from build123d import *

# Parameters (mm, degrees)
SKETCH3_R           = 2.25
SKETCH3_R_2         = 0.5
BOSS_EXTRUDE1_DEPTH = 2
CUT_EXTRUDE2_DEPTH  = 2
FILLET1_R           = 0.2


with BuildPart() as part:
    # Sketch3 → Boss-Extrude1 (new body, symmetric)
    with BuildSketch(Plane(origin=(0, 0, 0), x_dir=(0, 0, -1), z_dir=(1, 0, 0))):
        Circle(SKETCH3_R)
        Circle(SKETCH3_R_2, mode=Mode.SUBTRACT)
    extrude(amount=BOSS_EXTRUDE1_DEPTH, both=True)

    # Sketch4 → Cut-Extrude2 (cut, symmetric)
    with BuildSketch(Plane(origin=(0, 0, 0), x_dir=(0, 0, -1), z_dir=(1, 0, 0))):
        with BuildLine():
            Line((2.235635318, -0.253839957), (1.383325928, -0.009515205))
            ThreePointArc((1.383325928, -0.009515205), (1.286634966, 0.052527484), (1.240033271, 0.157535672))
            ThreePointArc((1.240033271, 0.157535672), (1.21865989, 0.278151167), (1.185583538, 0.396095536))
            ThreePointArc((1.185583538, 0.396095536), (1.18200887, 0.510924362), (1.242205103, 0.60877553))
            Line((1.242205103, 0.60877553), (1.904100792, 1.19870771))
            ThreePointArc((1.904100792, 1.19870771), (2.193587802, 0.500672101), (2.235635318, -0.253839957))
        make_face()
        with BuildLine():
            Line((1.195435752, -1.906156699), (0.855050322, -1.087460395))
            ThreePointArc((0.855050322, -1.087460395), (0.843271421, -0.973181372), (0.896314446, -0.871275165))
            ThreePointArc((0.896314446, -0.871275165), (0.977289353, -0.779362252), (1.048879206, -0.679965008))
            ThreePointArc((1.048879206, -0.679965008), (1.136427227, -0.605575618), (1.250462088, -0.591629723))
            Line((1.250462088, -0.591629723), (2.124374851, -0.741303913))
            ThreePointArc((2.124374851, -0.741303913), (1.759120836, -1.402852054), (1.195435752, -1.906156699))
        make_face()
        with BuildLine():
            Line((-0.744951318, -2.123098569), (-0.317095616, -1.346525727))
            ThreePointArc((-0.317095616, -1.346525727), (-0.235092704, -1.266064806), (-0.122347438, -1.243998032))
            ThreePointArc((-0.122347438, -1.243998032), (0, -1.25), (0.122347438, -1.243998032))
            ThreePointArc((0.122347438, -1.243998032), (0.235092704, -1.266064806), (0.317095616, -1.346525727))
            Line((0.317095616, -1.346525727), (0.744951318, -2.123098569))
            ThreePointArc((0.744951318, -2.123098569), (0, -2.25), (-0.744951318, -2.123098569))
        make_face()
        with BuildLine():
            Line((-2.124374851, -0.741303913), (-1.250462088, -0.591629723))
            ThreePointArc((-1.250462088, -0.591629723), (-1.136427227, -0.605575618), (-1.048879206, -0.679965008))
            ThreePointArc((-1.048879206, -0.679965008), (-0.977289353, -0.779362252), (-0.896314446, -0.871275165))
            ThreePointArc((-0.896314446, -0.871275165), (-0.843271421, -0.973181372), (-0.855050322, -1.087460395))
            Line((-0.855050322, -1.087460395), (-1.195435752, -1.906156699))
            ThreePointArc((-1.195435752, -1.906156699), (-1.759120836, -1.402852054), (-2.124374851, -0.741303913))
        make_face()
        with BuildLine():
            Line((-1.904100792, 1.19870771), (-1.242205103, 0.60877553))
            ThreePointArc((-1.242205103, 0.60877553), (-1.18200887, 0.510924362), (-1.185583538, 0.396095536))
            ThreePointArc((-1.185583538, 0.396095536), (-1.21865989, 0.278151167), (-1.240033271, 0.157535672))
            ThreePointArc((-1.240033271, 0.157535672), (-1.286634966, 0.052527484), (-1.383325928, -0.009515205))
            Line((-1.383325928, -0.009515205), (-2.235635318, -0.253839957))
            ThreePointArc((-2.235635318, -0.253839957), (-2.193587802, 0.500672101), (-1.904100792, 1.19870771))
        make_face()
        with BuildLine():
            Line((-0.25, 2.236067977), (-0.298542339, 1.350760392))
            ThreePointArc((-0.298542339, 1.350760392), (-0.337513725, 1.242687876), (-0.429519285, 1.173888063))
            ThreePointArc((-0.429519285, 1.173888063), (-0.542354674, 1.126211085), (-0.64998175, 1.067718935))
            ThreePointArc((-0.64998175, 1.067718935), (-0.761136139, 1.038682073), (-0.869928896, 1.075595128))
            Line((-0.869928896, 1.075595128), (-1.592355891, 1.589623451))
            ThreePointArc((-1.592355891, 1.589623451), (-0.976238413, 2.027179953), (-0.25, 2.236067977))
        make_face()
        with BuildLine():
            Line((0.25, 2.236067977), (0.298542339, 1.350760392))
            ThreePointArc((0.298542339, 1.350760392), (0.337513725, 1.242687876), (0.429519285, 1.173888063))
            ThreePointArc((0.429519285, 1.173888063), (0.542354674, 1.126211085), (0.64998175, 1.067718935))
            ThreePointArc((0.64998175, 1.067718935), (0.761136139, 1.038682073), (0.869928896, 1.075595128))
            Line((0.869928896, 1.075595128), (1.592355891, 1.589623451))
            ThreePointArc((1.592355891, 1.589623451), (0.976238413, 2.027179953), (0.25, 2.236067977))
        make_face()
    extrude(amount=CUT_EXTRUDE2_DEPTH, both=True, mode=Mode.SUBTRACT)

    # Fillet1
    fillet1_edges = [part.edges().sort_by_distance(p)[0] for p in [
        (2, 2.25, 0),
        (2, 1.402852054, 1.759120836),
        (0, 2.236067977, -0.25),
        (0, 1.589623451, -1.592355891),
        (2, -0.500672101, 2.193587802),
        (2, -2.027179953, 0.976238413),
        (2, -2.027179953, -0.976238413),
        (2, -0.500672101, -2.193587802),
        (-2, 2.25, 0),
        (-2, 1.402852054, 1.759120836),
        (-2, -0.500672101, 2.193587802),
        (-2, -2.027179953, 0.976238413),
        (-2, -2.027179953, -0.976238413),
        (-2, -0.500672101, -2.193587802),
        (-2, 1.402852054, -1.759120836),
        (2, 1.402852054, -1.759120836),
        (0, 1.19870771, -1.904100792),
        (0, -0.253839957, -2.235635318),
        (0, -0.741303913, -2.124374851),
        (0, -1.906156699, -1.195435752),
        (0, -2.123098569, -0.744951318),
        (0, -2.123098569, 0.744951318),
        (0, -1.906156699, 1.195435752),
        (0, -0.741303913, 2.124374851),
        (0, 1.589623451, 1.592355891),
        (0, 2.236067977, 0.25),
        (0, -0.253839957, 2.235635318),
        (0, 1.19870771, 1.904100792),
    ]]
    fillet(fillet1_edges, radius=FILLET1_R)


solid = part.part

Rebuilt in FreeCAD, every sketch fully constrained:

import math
import FreeCAD as App
import Part
import Sketcher

V = App.Vector
Q = App.Units.Quantity


def edges_at(feature, points):
    """Names of the edges that pass closest to the given points."""
    edges = feature.Shape.Edges
    near = lambda p: min(range(len(edges)), key=lambda i: edges[i].distToShape(Part.Vertex(*p))[0])
    return sorted({f"Edge{near(p) + 1}" for p in points})

doc = App.newDocument("Part")
body = doc.addObject("PartDesign::Body", "Body")

# Sketch on YZ plane
sketch1 = doc.addObject("Sketcher::SketchObject", "Sketch")
body.addObject(sketch1)
sketch1.AttachmentSupport = (doc.YZ_Plane, [""])
sketch1.MapMode = "FlatFace"
sketch1.addGeometry([
    Part.Circle(V(0, 0, 0), V(0, 0, 1), 2.2),
    Part.Circle(V(0, 0, 0), V(0, 0, 1), 0.5),
], False)
sketch1.addConstraint([
    Sketcher.Constraint("Coincident", 0, 3, -1, 1),
    Sketcher.Constraint("Coincident", 1, 3, -1, 1),
    Sketcher.Constraint("Diameter", 1, Q("1 mm")),
    Sketcher.Constraint("Diameter", 0, Q("4.5 mm")),
])
pad1 = doc.addObject("PartDesign::Pad", "Pad")
body.addObject(pad1)
pad1.Profile = sketch1
pad1.Length = 4
pad1.Midplane = True

# Sketch on YZ plane
sketch2 = doc.addObject("Sketcher::SketchObject", "Sketch001")
body.addObject(sketch2)
sketch2.AttachmentSupport = (doc.YZ_Plane, [""])
sketch2.MapMode = "FlatFace"
sketch2.addGeometry([
    Part.LineSegment(V(-0.01, -1.38, 0), V(-0.25, -2.24, 0)),  # 0
    Part.ArcOfCircle(Part.Circle(V(0, 0, 0), V(0, 0, 1), 2.25), math.radians(-96), math.radians(-58)),  # 1
    Part.LineSegment(V(1.2, -1.9, 0), V(0.61, -1.24, 0)),  # 2
    Part.ArcOfCircle(Part.Circle(V(0.46, -1.38, 0), V(0, 0, 1), 0.2), math.radians(42), math.radians(108)),  # 3
    Part.ArcOfCircle(Part.Circle(V(0, 0, 0), V(0, 0, 1), 1.25), math.radians(-82.76), math.radians(-71.53)),  # 4
    Part.ArcOfCircle(Part.Circle(V(0.18, -1.44, 0), V(0, 0, 1), 0.2), math.radians(97), math.radians(164)),  # 5
    Part.LineSegment(V(-1.09, -0.86, 0), V(-1.91, -1.2, 0)),  # 6
    Part.ArcOfCircle(Part.Circle(V(0, 0, 0), V(0, 0, 1), 2.25), math.radians(-148), math.radians(-109)),  # 7
    Part.LineSegment(V(-0.74, -2.12, 0), V(-0.59, -1.25, 0)),  # 8
    Part.ArcOfCircle(Part.Circle(V(-0.79, -1.22, 0), V(0, 0, 1), 0.2), math.radians(-10), math.radians(57)),  # 9
    Part.ArcOfCircle(Part.Circle(V(0, 0, 0), V(0, 0, 1), 1.25), math.radians(-134.19), math.radians(-122.95)),  # 10
    Part.ArcOfCircle(Part.Circle(V(-1.01, -1.04, 0), V(0, 0, 1), 0.2), math.radians(46), math.radians(113)),  # 11
    Part.LineSegment(V(-1.35, 0.32, 0), V(-2.12, 0.74, 0)),  # 12
    Part.ArcOfCircle(Part.Circle(V(0, 0, 0), V(0, 0, 1), 2.25), math.radians(161), math.radians(199)),  # 13
    Part.LineSegment(V(-2.12, -0.74, 0), V(-1.35, -0.32, 0)),  # 14
    Part.ArcOfCircle(Part.Circle(V(-1.44, -0.14, 0), V(0, 0, 1), 0.2), math.radians(-61), math.radians(6)),  # 15
    Part.ArcOfCircle(Part.Circle(V(0, 0, 0), V(0, 0, 1), 1.25), math.radians(174.38), math.radians(185.62)),  # 16
    Part.ArcOfCircle(Part.Circle(V(-1.44, 0.14, 0), V(0, 0, 1), 0.2), math.radians(-6), math.radians(61)),  # 17
    Part.LineSegment(V(-0.59, 1.25, 0), V(-0.74, 2.12, 0)),  # 18
    Part.ArcOfCircle(Part.Circle(V(0, 0, 0), V(0, 0, 1), 2.25), math.radians(109), math.radians(148)),  # 19
    Part.LineSegment(V(-1.91, 1.2, 0), V(-1.09, 0.86, 0)),  # 20
    Part.ArcOfCircle(Part.Circle(V(-1.01, 1.04, 0), V(0, 0, 1), 0.2), math.radians(-113), math.radians(-46)),  # 21
    Part.ArcOfCircle(Part.Circle(V(0, 0, 0), V(0, 0, 1), 1.25), math.radians(122.95), math.radians(134.19)),  # 22
    Part.ArcOfCircle(Part.Circle(V(-0.79, 1.22, 0), V(0, 0, 1), 0.2), math.radians(-57), math.radians(10)),  # 23
    Part.LineSegment(V(0.61, 1.24, 0), V(1.2, 1.9, 0)),  # 24
    Part.ArcOfCircle(Part.Circle(V(0, 0, 0), V(0, 0, 1), 2.25), math.radians(58), math.radians(96)),  # 25
    Part.LineSegment(V(-0.25, 2.24, 0), V(-0.01, 1.38, 0)),  # 26
    Part.ArcOfCircle(Part.Circle(V(0.18, 1.44, 0), V(0, 0, 1), 0.2), math.radians(-164), math.radians(-97)),  # 27
    Part.ArcOfCircle(Part.Circle(V(0, 0, 0), V(0, 0, 1), 1.25), math.radians(71.53), math.radians(82.76)),  # 28
    Part.ArcOfCircle(Part.Circle(V(0.46, 1.38, 0), V(0, 0, 1), 0.2), math.radians(-108), math.radians(-42)),  # 29
    Part.LineSegment(V(1.35, 0.3, 0), V(2.24, 0.25, 0)),  # 30
    Part.ArcOfCircle(Part.Circle(V(0, 0, 0), V(0, 0, 1), 2.25), math.radians(6), math.radians(45)),  # 31
    Part.LineSegment(V(1.59, 1.59, 0), V(1.08, 0.87, 0)),  # 32
    Part.ArcOfCircle(Part.Circle(V(1.24, 0.75, 0), V(0, 0, 1), 0.2), math.radians(145), math.radians(211)),  # 33
    Part.ArcOfCircle(Part.Circle(V(0, 0, 0), V(0, 0, 1), 1.25), math.radians(20.1), math.radians(31.33)),  # 34
    Part.ArcOfCircle(Part.Circle(V(1.36, 0.5, 0), V(0, 0, 1), 0.2), math.radians(-160), math.radians(-93)),  # 35
    Part.LineSegment(V(2.24, -0.25, 0), V(1.35, -0.3, 0)),  # 36
    Part.ArcOfCircle(Part.Circle(V(1.36, -0.5, 0), V(0, 0, 1), 0.2), math.radians(93), math.radians(160)),  # 37
    Part.ArcOfCircle(Part.Circle(V(0, 0, 0), V(0, 0, 1), 1.25), math.radians(-31.33), math.radians(-20.1)),  # 38
    Part.ArcOfCircle(Part.Circle(V(1.24, -0.75, 0), V(0, 0, 1), 0.2), math.radians(149), math.radians(215)),  # 39
    Part.LineSegment(V(1.08, -0.87, 0), V(1.59, -1.59, 0)),  # 40
    Part.ArcOfCircle(Part.Circle(V(0, 0, 0), V(0, 0, 1), 2.25), math.radians(-45), math.radians(-6)),  # 41
], False)
sketch2.addConstraint([
    Sketcher.Constraint("Coincident", 0, 2, 1, 1),
    Sketcher.Constraint("Coincident", 1, 2, 2, 1),
    Sketcher.Constraint("Tangent", 2, 2, 3, 1),
    Sketcher.Constraint("Tangent", 3, 2, 4, 2),
    Sketcher.Constraint("Tangent", 4, 1, 5, 1),
    Sketcher.Constraint("Tangent", 5, 2, 0, 1),
    Sketcher.Constraint("Coincident", 6, 2, 7, 1),
    Sketcher.Constraint("Coincident", 7, 2, 8, 1),
    Sketcher.Constraint("Tangent", 8, 2, 9, 1),
    Sketcher.Constraint("Tangent", 9, 2, 10, 2),
    Sketcher.Constraint("Tangent", 10, 1, 11, 1),
    Sketcher.Constraint("Tangent", 11, 2, 6, 1),
    Sketcher.Constraint("Coincident", 12, 2, 13, 1),
    Sketcher.Constraint("Coincident", 13, 2, 14, 1),
    Sketcher.Constraint("Tangent", 14, 2, 15, 1),
    Sketcher.Constraint("Tangent", 15, 2, 16, 2),
    Sketcher.Constraint("Tangent", 16, 1, 17, 1),
    Sketcher.Constraint("Tangent", 17, 2, 12, 1),
    Sketcher.Constraint("Coincident", 18, 2, 19, 1),
    Sketcher.Constraint("Coincident", 19, 2, 20, 1),
    Sketcher.Constraint("Tangent", 20, 2, 21, 1),
    Sketcher.Constraint("Tangent", 21, 2, 22, 2),
    Sketcher.Constraint("Tangent", 22, 1, 23, 1),
    Sketcher.Constraint("Tangent", 23, 2, 18, 1),
    Sketcher.Constraint("Coincident", 24, 2, 25, 1),
    Sketcher.Constraint("Coincident", 25, 2, 26, 1),
    Sketcher.Constraint("Tangent", 26, 2, 27, 1),
    Sketcher.Constraint("Tangent", 27, 2, 28, 2),
    Sketcher.Constraint("Tangent", 28, 1, 29, 1),
    Sketcher.Constraint("Tangent", 29, 2, 24, 1),
    Sketcher.Constraint("Coincident", 30, 2, 31, 1),
    Sketcher.Constraint("Coincident", 31, 2, 32, 1),
    Sketcher.Constraint("Tangent", 32, 2, 33, 1),
    Sketcher.Constraint("Tangent", 33, 2, 34, 2),
    Sketcher.Constraint("Tangent", 34, 1, 35, 1),
    Sketcher.Constraint("Tangent", 35, 2, 30, 1),
    Sketcher.Constraint("Tangent", 36, 2, 37, 1),
    Sketcher.Constraint("Tangent", 37, 2, 38, 2),
    Sketcher.Constraint("Tangent", 38, 1, 39, 1),
    Sketcher.Constraint("Tangent", 39, 2, 40, 1),
    Sketcher.Constraint("Coincident", 40, 2, 41, 1),
    Sketcher.Constraint("Coincident", 41, 2, 36, 1),
    Sketcher.Constraint("Coincident", 1, 3, -1, 1),
    Sketcher.Constraint("Coincident", 4, 3, -1, 1),
    Sketcher.Constraint("Coincident", 7, 3, -1, 1),
    Sketcher.Constraint("Coincident", 10, 3, -1, 1),
    Sketcher.Constraint("Coincident", 13, 3, -1, 1),
    Sketcher.Constraint("Coincident", 16, 3, -1, 1),
    Sketcher.Constraint("Coincident", 19, 3, -1, 1),
    Sketcher.Constraint("Coincident", 22, 3, -1, 1),
    Sketcher.Constraint("Coincident", 25, 3, -1, 1),
    Sketcher.Constraint("Coincident", 28, 3, -1, 1),
    Sketcher.Constraint("Coincident", 31, 3, -1, 1),
    Sketcher.Constraint("Coincident", 34, 3, -1, 1),
    Sketcher.Constraint("Coincident", 38, 3, -1, 1),
    Sketcher.Constraint("Coincident", 41, 3, -1, 1),
    Sketcher.Constraint("Equal", 3, 5),
    Sketcher.Constraint("Equal", 1, 7),
    Sketcher.Constraint("Equal", 5, 9),
    Sketcher.Constraint("Equal", 4, 10),
    Sketcher.Constraint("Equal", 9, 11),
    Sketcher.Constraint("Equal", 7, 13),
    Sketcher.Constraint("Equal", 11, 15),
    Sketcher.Constraint("Equal", 10, 16),
    Sketcher.Constraint("Equal", 15, 17),
    Sketcher.Constraint("Equal", 13, 19),
    Sketcher.Constraint("Equal", 17, 21),
    Sketcher.Constraint("Equal", 16, 22),
    Sketcher.Constraint("Equal", 21, 23),
    Sketcher.Constraint("Equal", 19, 25),
    Sketcher.Constraint("Equal", 23, 27),
    Sketcher.Constraint("Equal", 22, 28),
    Sketcher.Constraint("Equal", 27, 29),
    Sketcher.Constraint("Equal", 25, 31),
    Sketcher.Constraint("Equal", 29, 33),
    Sketcher.Constraint("Equal", 28, 34),
    Sketcher.Constraint("Equal", 33, 35),
    Sketcher.Constraint("Equal", 35, 37),
    Sketcher.Constraint("Equal", 34, 38),
    Sketcher.Constraint("Equal", 37, 39),
    Sketcher.Constraint("Equal", 31, 41),
    Sketcher.Constraint("Symmetric", 14, 2, 17, 2, -1),
    Sketcher.Constraint("Symmetric", 11, 2, 20, 2, -1),
    Sketcher.Constraint("Symmetric", 8, 2, 23, 2, -1),
    Sketcher.Constraint("Symmetric", 5, 2, 26, 2, -1),
    Sketcher.Constraint("Symmetric", 2, 2, 29, 2, -1),
    Sketcher.Constraint("Symmetric", 35, 2, 36, 2, -1),
    Sketcher.Constraint("Symmetric", 32, 2, 39, 2, -1),
    Sketcher.Constraint("Equal", 0, 2),
    Sketcher.Constraint("Equal", 2, 6),
    Sketcher.Constraint("Equal", 6, 8),
    Sketcher.Constraint("Equal", 8, 12),
    Sketcher.Constraint("Equal", 26, 30),
    Sketcher.Constraint("Equal", 30, 32),
    Sketcher.Constraint("Radius", 3, Q("0.2 mm")),
    Sketcher.Constraint("Radius", 1, Q("2.25 mm")),
    Sketcher.Constraint("Radius", 4, Q("1.25 mm")),
    Sketcher.Constraint("DistanceY", -1, 1, 30, 2, Q("0.25 mm")),
    Sketcher.Constraint("DistanceX", 15, 2, -1, 1, Q("1.243998 mm")),
    Sketcher.Constraint("DistanceY", 9, 3, -1, 1, Q("1.2167 mm")),
    Sketcher.Constraint("DistanceY", 1, 2, -1, 1, Q("1.904101 mm")),
    Sketcher.Constraint("DistanceX", 12, 2, -1, 1, Q("2.123099 mm")),
    Sketcher.Constraint("DistanceX", -1, 1, 5, 3, Q("0.182741 mm")),
    Sketcher.Constraint("DistanceX", 11, 3, -1, 1, Q("1.010679 mm")),
    Sketcher.Constraint("DistanceY", -1, 1, 33, 3, Q("0.753979 mm")),
])
pocket1 = doc.addObject("PartDesign::Pocket", "Pocket")
body.addObject(pocket1)
pocket1.Profile = sketch2
pocket1.Length = 4
pocket1.Midplane = True
doc.recompute()

fillet = doc.addObject("PartDesign::Fillet", "Fillet")
body.addObject(fillet)
fillet.Base = (pocket1, edges_at(pocket1, [
    (2, 2.25, 0),
    (2, 1.403, 1.759),
    (0, 2.236, -0.25),
    (0, 1.59, -1.592),
    (2, -0.501, 2.194),
    (2, -2.027, 0.976),
    (2, -2.027, -0.976),
    (2, -0.501, -2.194),
    (-2, 2.25, 0),
    (-2, 1.403, 1.759),
    (-2, -0.501, 2.194),
    (-2, -2.027, 0.976),
    (-2, -2.027, -0.976),
    (-2, -0.501, -2.194),
    (-2, 1.403, -1.759),
    (2, 1.403, -1.759),
    (0, 1.199, -1.904),
    (0, -0.254, -2.236),
    (0, -0.741, -2.124),
    (0, -1.906, -1.195),
    (0, -2.123, -0.745),
    (0, -2.123, 0.745),
    (0, -1.906, 1.195),
    (0, -0.741, 2.124),
    (0, 1.59, 1.592),
    (0, 2.236, 0.25),
    (0, -0.254, 2.236),
    (0, 1.199, 1.904),
]))
fillet.Radius = 0.2

doc.recompute()
